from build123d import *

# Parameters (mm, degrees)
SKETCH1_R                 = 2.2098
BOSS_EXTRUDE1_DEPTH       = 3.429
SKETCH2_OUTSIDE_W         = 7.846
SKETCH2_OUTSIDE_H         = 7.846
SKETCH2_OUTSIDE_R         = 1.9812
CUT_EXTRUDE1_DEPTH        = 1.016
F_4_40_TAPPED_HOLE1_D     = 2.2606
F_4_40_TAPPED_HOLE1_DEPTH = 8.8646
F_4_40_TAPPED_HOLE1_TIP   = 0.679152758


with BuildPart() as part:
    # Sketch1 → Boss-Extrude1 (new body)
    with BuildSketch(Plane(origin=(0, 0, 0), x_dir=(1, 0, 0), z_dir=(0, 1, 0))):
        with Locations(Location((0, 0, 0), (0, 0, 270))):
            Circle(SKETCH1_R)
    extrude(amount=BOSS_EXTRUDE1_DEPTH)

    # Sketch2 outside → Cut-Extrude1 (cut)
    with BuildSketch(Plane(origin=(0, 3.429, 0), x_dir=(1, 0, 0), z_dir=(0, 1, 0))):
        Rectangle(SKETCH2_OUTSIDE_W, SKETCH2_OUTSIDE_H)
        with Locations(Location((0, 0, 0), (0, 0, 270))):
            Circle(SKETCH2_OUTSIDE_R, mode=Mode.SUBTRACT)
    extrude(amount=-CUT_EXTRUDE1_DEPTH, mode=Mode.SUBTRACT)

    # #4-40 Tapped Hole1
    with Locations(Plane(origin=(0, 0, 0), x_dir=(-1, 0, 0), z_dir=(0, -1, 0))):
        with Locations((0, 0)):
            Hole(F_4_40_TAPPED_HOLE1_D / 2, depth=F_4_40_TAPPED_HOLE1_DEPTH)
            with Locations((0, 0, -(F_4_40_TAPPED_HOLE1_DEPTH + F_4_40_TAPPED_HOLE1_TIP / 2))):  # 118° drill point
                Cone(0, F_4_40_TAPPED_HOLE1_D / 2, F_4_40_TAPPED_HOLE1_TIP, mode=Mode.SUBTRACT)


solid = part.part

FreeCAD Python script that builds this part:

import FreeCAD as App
import Part
import Sketcher

V = App.Vector
Q = App.Units.Quantity


def add_polygon(sketch, points):
    """Adds a closed chain of lines whose ends are joined by coincident constraints."""
    first, n = sketch.GeometryCount, len(points)
    for a, b in zip(points, points[1:] + points[:1]):
        sketch.addGeometry(Part.LineSegment(App.Vector(*a, 0), App.Vector(*b, 0)), False)
    for i in range(n):
        sketch.addConstraint(Sketcher.Constraint("Coincident", first + i, 2, first + (i + 1) % n, 1))

doc = App.newDocument("Part")
params = doc.addObject("Spreadsheet::Sheet", "Params")
for row, (alias, value) in enumerate([
    ("sketch1_diameter", "0.174 in"),
    ("pad1_length", "0.135 in"),
    ("sketch2_diameter", "0.156 in"),
    ("pocket1_length", "0.04 in"),
    ("sketch3_diameter", "0.089 in"),
    ("hole_diameter", "0.089 in"),
    ("hole_depth", "0.349 in"),
], start=1):
    params.set(f"A{row}", alias)
    params.set(f"B{row}", "=" + value)
    params.setAlias(f"B{row}", alias)

body = doc.addObject("PartDesign::Body", "Body")

# Sketch on XZ plane
sketch1 = body.newObject("Sketcher::SketchObject", "Sketch")
sketch1.AttachmentSupport = (doc.getObject("XZ_Plane"), [""])
sketch1.MapMode = "FlatFace"
sketch1.addGeometry(Part.Circle(V(0, 0, 0), V(0, 0, 1), 2.2), False)
sketch1.addConstraint(Sketcher.Constraint("Coincident", 0, 3, -1, 1))
sketch1.addConstraint(Sketcher.Constraint("Diameter", 0, Q("0.174 in")))
sketch1.setExpression("Constraints[1]", "Params.sketch1_diameter")
pad1 = body.newObject("PartDesign::Pad", "Pad")
pad1.Profile = sketch1
pad1.setExpression("Length", "Params.pad1_length")
pad1.Reversed = True

# Sketch on XZ plane
sketch2 = body.newObject("Sketcher::SketchObject", "Sketch001")
sketch2.AttachmentSupport = (doc.getObject("XZ_Plane"), [""])
sketch2.MapMode = "FlatFace"
sketch2.AttachmentOffset = App.Placement(V(0, 0, -0.135 * 25.4), App.Rotation())
add_polygon(sketch2, [(-3.9, -3.9), (-3.9, 3.9), (3.9, 3.9), (3.9, -3.9)])  # lines 0-3
sketch2.addGeometry(Part.Circle(V(0, 0, 0), V(0, 0, 1), 2), False)  # 4
sketch2.addConstraint(Sketcher.Constraint("Vertical", 0))
sketch2.addConstraint(Sketcher.Constraint("Horizontal", 1))
sketch2.addConstraint(Sketcher.Constraint("Vertical", 2))
sketch2.addConstraint(Sketcher.Constraint("Horizontal", 3))
sketch2.addConstraint(Sketcher.Constraint("Coincident", 4, 3, -1, 1))
sketch2.addConstraint(Sketcher.Constraint("Symmetric", 0, 2, 2, 2, -1, 1))
sketch2.addConstraint(Sketcher.Constraint("Equal", 3, 0))
sketch2.addConstraint(Sketcher.Constraint("Diameter", 4, Q("0.156 in")))
sketch2.addConstraint(Sketcher.Constraint("DistanceX", 1, 1, 1, 2, Q("7.846 mm")))
sketch2.setExpression("Constraints[11]", "Params.sketch2_diameter")
pocket1 = body.newObject("PartDesign::Pocket", "Pocket")
pocket1.Profile = sketch2
pocket1.setExpression("Length", "Params.pocket1_length")
pocket1.Reversed = True

# Sketch on XZ plane
sketch3 = body.newObject("Sketcher::SketchObject", "Sketch002")
sketch3.AttachmentSupport = (doc.getObject("XZ_Plane"), [""])
sketch3.MapMode = "FlatFace"
sketch3.addGeometry(Part.Circle(V(0, 0, 0), V(0, 0, 1), 1.1), False)
sketch3.addConstraint(Sketcher.Constraint("Coincident", 0, 3, -1, 1))
sketch3.addConstraint(Sketcher.Constraint("Diameter", 0, Q("0.089 in")))
sketch3.setExpression("Constraints[1]", "Params.sketch3_diameter")
doc.recompute()
hole = body.newObject("PartDesign::Hole", "Hole")
hole.Profile = sketch3
hole.ThreadType = "None"
hole.setExpression("Diameter", "Params.hole_diameter")
hole.DepthType = "Dimension"
hole.setExpression("Depth", "Params.hole_depth")
hole.DrillPoint = "Angled"
hole.DrillPointAngle = 118

doc.recompute()
